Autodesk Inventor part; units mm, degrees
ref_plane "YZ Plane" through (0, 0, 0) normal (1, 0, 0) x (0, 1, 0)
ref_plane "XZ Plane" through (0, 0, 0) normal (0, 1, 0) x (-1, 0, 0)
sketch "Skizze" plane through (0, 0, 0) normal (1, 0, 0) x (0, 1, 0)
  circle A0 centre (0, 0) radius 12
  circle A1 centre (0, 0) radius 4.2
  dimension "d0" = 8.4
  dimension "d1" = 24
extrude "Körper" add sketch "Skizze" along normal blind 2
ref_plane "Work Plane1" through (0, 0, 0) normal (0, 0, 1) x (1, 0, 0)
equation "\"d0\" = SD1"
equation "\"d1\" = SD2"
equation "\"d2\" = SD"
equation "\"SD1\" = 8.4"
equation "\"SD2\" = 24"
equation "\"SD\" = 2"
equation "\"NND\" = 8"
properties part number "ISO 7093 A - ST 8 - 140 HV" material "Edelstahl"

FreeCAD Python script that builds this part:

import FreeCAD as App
import Part
import Sketcher

doc = App.newDocument("Part")
body = doc.addObject("PartDesign::Body", "Body")

sketch1 = doc.addObject("Sketcher::SketchObject", "Sketch")
body.addObject(sketch1)
sketch1.AttachmentSupport = (doc.YZ_Plane, [""])
sketch1.MapMode = "FlatFace"
sketch1.addGeometry([
    Part.Circle(App.Vector(0, 0, 0), App.Vector(0, 0, 1), 12),
    Part.Circle(App.Vector(0, 0, 0), App.Vector(0, 0, 1), 4.2),
], False)
sketch1.addConstraint([
    Sketcher.Constraint("Coincident", 0, 3, -1, 1),
    Sketcher.Constraint("Coincident", 1, 3, -1, 1),
    Sketcher.Constraint("Diameter", 0, 24.0),
    Sketcher.Constraint("Diameter", 1, 8.4),
])
pad1 = doc.addObject("PartDesign::Pad", "Pad")
body.addObject(pad1)
pad1.Profile = sketch1
pad1.Length = 2

doc.recompute()
